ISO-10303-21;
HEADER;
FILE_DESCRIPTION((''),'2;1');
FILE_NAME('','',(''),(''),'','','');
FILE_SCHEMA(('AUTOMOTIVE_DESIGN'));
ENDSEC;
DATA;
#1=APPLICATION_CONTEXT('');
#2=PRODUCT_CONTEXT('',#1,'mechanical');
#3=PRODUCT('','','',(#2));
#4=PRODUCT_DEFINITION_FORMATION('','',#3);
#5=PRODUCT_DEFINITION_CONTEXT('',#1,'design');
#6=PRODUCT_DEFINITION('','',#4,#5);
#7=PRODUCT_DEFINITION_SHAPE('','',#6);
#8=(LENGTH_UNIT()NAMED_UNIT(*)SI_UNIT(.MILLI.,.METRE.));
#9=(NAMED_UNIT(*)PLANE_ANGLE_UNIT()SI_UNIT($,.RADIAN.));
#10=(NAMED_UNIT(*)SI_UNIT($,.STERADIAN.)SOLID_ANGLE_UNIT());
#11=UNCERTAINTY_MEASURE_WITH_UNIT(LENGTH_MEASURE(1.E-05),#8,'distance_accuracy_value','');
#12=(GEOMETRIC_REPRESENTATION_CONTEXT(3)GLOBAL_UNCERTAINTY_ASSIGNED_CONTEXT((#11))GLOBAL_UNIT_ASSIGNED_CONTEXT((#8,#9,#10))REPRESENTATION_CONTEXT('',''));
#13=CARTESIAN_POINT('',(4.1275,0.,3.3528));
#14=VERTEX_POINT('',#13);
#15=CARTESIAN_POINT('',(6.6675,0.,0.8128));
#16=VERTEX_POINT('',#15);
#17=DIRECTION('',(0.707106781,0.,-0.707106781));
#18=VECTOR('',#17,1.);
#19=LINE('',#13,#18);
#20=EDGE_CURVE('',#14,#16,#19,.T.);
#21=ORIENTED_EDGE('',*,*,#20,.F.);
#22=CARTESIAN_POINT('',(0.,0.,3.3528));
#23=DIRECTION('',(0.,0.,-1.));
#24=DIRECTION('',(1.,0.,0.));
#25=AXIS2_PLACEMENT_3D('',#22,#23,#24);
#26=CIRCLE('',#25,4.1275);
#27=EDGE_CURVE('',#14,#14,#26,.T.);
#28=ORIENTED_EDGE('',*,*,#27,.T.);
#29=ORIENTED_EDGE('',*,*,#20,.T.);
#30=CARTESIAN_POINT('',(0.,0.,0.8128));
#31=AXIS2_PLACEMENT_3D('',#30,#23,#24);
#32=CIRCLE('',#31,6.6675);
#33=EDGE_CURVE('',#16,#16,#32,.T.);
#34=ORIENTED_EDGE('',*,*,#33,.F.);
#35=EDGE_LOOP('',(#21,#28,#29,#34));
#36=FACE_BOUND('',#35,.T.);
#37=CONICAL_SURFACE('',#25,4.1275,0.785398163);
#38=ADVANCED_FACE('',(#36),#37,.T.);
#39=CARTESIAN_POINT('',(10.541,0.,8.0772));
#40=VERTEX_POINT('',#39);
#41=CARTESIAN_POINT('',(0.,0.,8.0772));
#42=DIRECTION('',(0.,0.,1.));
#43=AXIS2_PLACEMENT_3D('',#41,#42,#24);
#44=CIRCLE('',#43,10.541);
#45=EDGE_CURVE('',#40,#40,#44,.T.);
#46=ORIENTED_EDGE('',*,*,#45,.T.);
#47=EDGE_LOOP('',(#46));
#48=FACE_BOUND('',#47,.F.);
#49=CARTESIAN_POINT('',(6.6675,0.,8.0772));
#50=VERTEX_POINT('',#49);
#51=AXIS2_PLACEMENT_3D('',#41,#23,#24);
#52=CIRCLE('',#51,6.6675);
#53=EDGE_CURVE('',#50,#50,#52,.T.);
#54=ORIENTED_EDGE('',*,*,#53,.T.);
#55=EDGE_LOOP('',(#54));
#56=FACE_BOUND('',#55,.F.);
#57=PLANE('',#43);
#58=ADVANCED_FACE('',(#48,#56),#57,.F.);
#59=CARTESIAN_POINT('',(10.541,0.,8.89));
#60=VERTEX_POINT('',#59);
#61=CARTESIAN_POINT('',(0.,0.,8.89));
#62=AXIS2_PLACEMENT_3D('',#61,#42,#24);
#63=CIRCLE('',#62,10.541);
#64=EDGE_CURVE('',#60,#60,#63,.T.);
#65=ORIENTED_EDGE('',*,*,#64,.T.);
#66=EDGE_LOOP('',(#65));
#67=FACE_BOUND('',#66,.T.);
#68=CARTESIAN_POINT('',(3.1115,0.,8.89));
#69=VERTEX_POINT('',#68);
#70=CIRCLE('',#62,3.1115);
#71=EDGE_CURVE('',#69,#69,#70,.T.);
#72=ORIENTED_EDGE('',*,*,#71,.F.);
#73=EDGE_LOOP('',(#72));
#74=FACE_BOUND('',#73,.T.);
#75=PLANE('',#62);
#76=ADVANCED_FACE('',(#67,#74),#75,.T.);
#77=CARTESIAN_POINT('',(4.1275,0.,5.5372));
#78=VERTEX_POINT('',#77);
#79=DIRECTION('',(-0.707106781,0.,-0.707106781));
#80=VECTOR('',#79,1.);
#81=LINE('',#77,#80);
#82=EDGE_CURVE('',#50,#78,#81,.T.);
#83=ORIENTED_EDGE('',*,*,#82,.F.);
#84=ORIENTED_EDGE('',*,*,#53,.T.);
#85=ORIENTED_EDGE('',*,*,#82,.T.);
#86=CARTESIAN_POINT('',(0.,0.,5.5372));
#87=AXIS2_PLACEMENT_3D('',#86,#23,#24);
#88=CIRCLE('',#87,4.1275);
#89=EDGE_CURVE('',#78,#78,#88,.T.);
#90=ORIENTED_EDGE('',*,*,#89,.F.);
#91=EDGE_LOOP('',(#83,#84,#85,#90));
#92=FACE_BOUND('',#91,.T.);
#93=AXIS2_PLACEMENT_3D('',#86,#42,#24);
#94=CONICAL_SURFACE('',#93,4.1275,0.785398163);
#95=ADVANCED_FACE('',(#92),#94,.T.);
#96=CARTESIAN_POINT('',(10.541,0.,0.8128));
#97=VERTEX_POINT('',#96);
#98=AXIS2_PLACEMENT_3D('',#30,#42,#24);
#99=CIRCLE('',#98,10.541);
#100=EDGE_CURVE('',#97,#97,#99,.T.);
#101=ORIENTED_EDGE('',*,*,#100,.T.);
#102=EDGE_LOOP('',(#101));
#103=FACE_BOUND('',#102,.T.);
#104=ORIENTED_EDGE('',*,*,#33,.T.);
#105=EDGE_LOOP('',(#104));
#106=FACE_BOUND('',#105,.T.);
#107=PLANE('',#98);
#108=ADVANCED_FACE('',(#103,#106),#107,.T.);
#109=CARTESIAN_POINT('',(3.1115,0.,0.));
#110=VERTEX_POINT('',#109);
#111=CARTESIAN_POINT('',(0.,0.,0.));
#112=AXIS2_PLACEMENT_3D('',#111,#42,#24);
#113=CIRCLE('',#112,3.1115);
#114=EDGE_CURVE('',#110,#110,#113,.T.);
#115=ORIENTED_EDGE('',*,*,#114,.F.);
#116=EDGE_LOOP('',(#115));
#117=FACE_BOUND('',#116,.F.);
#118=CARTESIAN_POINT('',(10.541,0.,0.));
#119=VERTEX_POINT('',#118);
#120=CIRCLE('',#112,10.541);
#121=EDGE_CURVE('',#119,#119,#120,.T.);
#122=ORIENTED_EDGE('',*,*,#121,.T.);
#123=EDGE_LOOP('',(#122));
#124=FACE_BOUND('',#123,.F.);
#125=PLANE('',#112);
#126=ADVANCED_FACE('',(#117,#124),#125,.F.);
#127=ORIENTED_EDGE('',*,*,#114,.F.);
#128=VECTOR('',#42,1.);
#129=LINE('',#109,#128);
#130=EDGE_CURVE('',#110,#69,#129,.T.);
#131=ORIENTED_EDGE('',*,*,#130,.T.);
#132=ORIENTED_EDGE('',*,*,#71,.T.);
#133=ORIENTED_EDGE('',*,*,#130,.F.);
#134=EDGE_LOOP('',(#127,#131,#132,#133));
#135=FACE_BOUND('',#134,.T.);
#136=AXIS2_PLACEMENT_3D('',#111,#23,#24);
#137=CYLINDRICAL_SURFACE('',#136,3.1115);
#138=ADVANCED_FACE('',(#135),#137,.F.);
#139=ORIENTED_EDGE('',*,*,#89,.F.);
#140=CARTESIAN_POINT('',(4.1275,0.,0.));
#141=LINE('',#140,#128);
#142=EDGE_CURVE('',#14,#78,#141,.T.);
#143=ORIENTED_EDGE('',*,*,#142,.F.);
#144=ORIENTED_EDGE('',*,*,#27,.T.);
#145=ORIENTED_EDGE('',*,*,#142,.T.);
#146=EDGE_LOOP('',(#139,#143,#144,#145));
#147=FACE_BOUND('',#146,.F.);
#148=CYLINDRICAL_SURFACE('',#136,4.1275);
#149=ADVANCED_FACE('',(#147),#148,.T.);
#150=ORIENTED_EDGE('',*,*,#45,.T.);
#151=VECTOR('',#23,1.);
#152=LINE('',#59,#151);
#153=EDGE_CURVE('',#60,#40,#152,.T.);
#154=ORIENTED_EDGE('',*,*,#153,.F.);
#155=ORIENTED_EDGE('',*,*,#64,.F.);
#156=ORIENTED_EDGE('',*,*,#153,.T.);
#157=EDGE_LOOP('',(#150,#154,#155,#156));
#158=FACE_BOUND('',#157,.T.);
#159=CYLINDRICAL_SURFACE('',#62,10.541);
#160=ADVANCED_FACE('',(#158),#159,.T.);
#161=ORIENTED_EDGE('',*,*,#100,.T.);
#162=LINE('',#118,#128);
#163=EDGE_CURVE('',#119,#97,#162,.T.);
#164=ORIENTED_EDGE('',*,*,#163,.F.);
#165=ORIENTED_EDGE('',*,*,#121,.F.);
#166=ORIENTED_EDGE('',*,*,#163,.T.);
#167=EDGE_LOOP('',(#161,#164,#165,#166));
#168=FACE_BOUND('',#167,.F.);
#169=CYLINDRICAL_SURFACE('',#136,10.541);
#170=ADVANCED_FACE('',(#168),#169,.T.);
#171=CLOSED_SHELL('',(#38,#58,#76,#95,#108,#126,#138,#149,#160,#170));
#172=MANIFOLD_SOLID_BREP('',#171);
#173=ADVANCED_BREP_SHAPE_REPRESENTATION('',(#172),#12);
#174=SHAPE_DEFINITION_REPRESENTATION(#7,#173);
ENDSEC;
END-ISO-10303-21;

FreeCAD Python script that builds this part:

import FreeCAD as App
import Part
import Sketcher
Q = App.Units.Quantity


def edges_at(feature, points):
    """Names of the edges that pass closest to the given points."""
    edges = feature.Shape.Edges
    near = lambda p: min(range(len(edges)), key=lambda i: edges[i].distToShape(Part.Vertex(*p))[0])
    return sorted({f"Edge{near(p) + 1}" for p in points})

doc = App.newDocument("Part")
body = doc.addObject("PartDesign::Body", "Body")

sketch1 = body.newObject("Sketcher::SketchObject", "Sketch")
sketch1.AttachmentSupport = (doc.getObject("XY_Plane"), [""])
sketch1.MapMode = "FlatFace"
sketch1.addGeometry(Part.Circle(App.Vector(0, 0, 0), App.Vector(0, 0, 1), 11), False)
sketch1.addConstraint([
    Sketcher.Constraint("Coincident", 0, 3, -1, 1),
    Sketcher.Constraint("Diameter", 0, Q("0.83 in")),
])
pad1 = body.newObject("PartDesign::Pad", "Pad")
pad1.Profile = sketch1
pad1.Length = Q("0.032 in")

sketch2 = body.newObject("Sketcher::SketchObject", "Sketch001")
sketch2.AttachmentSupport = (doc.getObject("XY_Plane"), [""])
sketch2.MapMode = "FlatFace"
sketch2.addGeometry(Part.Circle(App.Vector(0, 0, 0), App.Vector(0, 0, 1), 4.1), False)
sketch2.addConstraint([
    Sketcher.Constraint("Coincident", 0, 3, -1, 1),
    Sketcher.Constraint("Diameter", 0, Q("0.325 in")),
])
pad2 = body.newObject("PartDesign::Pad", "Pad001")
pad2.Profile = sketch2
pad2.Length = Q("0.35 in")

sketch3 = body.newObject("Sketcher::SketchObject", "Sketch002")
sketch3.AttachmentSupport = (doc.getObject("XY_Plane"), [""])
sketch3.MapMode = "FlatFace"
sketch3.AttachmentOffset = App.Placement(App.Vector(0, 0, 0.35 * 25.4), App.Rotation())
sketch3.addGeometry(Part.Circle(App.Vector(0, 0, 0), App.Vector(0, 0, 1), 11), False)
sketch3.addConstraint([
    Sketcher.Constraint("Coincident", 0, 3, -1, 1),
    Sketcher.Constraint("Diameter", 0, Q("0.83 in")),
])
pad3 = body.newObject("PartDesign::Pad", "Pad002")
pad3.Profile = sketch3
pad3.Length = Q("0.032 in")
pad3.Reversed = True

sketch4 = body.newObject("Sketcher::SketchObject", "Sketch003")
sketch4.AttachmentSupport = (doc.getObject("XY_Plane"), [""])
sketch4.MapMode = "FlatFace"
sketch4.addGeometry(Part.Circle(App.Vector(0, 0, 0), App.Vector(0, 0, 1), 3.1), False)
sketch4.addConstraint([
    Sketcher.Constraint("Coincident", 0, 3, -1, 1),
    Sketcher.Constraint("Diameter", 0, Q("0.245 in")),
])
pocket1 = body.newObject("PartDesign::Pocket", "Pocket")
pocket1.Profile = sketch4
pocket1.Length = Q("0.35 in")
pocket1.Reversed = True
doc.recompute()

chamfer = body.newObject("PartDesign::Chamfer", "Chamfer")
chamfer.Base = (pocket1, edges_at(pocket1, [(-4.128, 0, 8.077), (-4.128, 0, 0.813)]))
chamfer.Size = Q("0.1 in")

doc.recompute()
